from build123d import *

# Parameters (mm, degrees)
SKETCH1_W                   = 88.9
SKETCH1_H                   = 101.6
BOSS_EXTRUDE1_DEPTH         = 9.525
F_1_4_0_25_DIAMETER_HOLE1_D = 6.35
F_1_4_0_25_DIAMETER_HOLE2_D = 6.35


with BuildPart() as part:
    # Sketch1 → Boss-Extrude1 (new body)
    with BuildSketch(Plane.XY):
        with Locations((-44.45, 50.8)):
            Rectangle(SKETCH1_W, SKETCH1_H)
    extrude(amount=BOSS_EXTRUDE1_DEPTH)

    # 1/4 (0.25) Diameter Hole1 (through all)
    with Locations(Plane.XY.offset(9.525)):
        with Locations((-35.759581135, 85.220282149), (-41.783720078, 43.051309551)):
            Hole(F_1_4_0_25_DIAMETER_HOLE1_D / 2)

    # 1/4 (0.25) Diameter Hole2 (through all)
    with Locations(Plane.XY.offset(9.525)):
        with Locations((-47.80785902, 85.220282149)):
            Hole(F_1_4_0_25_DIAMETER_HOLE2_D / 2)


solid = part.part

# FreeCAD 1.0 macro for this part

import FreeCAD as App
import Part
import Sketcher
from FreeCAD import Vector
Q = App.Units.Quantity


def add_polygon(sketch, points):
    """Adds a closed chain of lines whose ends are joined by coincident constraints."""
    first, n = sketch.GeometryCount, len(points)
    for a, b in zip(points, points[1:] + points[:1]):
        sketch.addGeometry(Part.LineSegment(App.Vector(*a, 0), App.Vector(*b, 0)), False)
    for i in range(n):
        sketch.addConstraint(Sketcher.Constraint("Coincident", first + i, 2, first + (i + 1) % n, 1))

doc = App.newDocument("Part")
body = doc.addObject("PartDesign::Body", "Body")

sketch1 = doc.addObject("Sketcher::SketchObject", "Sketch")
body.addObject(sketch1)
sketch1.AttachmentSupport = (doc.XY_Plane, [""])
sketch1.MapMode = "FlatFace"
add_polygon(sketch1, [(-89, 102), (-89, 0), (0, 0), (0, 102)])
sketch1.addConstraint([
    Sketcher.Constraint("Vertical", 0),
    Sketcher.Constraint("Horizontal", 1),
    Sketcher.Constraint("Vertical", 2),
    Sketcher.Constraint("Horizontal", 3),
    Sketcher.Constraint("Coincident", 1, 2, -1, 1),
    Sketcher.Constraint("DistanceY", 0, 2, 0, 1, Q("4 in")),
    Sketcher.Constraint("DistanceX", 1, 1, 1, 2, Q("3.5 in")),
])
pad1 = doc.addObject("PartDesign::Pad", "Pad")
body.addObject(pad1)
pad1.Profile = sketch1
pad1.Length = Q("0.375 in")

sketch2 = doc.addObject("Sketcher::SketchObject", "Sketch001")
body.addObject(sketch2)
sketch2.AttachmentSupport = (doc.XY_Plane, [""])
sketch2.MapMode = "FlatFace"
sketch2.AttachmentOffset = App.Placement(Vector(0, 0, 0.375 * 25.4), App.Rotation())
sketch2.addGeometry([
    Part.Circle(Vector(-35.8, 85.2, 0), Vector(0, 0, 1), 3.2),
    Part.Circle(Vector(-41.8, 43.1, 0), Vector(0, 0, 1), 3.2),
], False)
sketch2.addConstraint([
    Sketcher.Constraint("Equal", 0, 1),
    Sketcher.Constraint("Diameter", 0, Q("0.25 in")),
    Sketcher.Constraint("DistanceX", 0, 3, -1, 1, Q("35.759581 mm")),
    Sketcher.Constraint("DistanceX", 1, 3, -1, 1, Q("41.78372 mm")),
    Sketcher.Constraint("DistanceY", -1, 1, 1, 3, Q("43.05131 mm")),
    Sketcher.Constraint("DistanceY", -1, 1, 0, 3, Q("85.220282 mm")),
])
doc.recompute()
hole = doc.addObject("PartDesign::Hole", "Hole")
body.addObject(hole)
hole.Profile = sketch2
hole.ThreadType = "None"
hole.Diameter = Q("0.25 in")
hole.DepthType = "ThroughAll"

sketch3 = doc.addObject("Sketcher::SketchObject", "Sketch002")
body.addObject(sketch3)
sketch3.AttachmentSupport = (doc.XY_Plane, [""])
sketch3.MapMode = "FlatFace"
sketch3.AttachmentOffset = App.Placement(Vector(0, 0, 0.375 * 25.4), App.Rotation())
sketch3.addGeometry(Part.Circle(Vector(-47.8, 85.2, 0), Vector(0, 0, 1), 3.2), False)
sketch3.addConstraint([
    Sketcher.Constraint("Diameter", 0, Q("0.25 in")),
    Sketcher.Constraint("DistanceX", 0, 3, -1, 1, Q("47.807859 mm")),
    Sketcher.Constraint("DistanceY", -1, 1, 0, 3, Q("85.220282 mm")),
])
doc.recompute()
hole2 = doc.addObject("PartDesign::Hole", "Hole001")
body.addObject(hole2)
hole2.Profile = sketch3
hole2.ThreadType = "None"
hole2.Diameter = Q("0.25 in")
hole2.DepthType = "ThroughAll"

doc.recompute()
